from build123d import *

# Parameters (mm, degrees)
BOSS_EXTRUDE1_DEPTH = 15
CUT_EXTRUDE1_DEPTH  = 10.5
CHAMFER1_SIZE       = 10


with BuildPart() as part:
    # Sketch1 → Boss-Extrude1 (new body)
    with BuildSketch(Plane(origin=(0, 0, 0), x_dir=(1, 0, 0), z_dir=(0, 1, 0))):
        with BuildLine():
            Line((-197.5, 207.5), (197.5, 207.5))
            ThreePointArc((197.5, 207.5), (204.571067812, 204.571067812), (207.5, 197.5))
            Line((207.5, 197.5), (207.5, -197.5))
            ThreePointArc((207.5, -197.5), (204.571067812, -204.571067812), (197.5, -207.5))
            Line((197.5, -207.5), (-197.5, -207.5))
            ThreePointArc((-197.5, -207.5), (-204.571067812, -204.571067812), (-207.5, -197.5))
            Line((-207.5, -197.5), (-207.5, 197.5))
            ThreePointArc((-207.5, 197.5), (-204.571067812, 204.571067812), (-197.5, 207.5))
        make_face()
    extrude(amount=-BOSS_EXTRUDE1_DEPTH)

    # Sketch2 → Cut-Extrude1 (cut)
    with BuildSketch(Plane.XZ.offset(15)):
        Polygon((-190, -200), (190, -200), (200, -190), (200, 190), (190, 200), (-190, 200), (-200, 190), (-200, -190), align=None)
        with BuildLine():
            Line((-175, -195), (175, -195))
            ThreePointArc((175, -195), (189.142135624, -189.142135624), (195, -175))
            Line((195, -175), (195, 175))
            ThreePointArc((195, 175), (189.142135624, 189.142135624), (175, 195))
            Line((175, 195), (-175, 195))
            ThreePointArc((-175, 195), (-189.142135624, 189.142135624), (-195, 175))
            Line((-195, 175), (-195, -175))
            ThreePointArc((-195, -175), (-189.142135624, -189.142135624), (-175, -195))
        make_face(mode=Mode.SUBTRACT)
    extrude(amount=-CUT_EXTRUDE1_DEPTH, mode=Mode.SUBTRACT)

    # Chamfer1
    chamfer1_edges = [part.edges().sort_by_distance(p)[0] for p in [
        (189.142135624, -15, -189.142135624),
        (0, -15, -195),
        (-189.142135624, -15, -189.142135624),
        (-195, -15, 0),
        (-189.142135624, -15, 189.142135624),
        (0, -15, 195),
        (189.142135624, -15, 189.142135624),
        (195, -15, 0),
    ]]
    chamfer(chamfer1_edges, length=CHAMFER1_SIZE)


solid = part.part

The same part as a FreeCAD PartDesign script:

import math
import FreeCAD as App
import Part
import Sketcher


def edges_at(feature, points):
    """Names of the edges that pass closest to the given points."""
    edges = feature.Shape.Edges
    near = lambda p: min(range(len(edges)), key=lambda i: edges[i].distToShape(Part.Vertex(*p))[0])
    return sorted({f"Edge{near(p) + 1}" for p in points})


def add_polygon(sketch, points):
    """Adds a closed chain of lines whose ends are joined by coincident constraints."""
    first, n = sketch.GeometryCount, len(points)
    for a, b in zip(points, points[1:] + points[:1]):
        sketch.addGeometry(Part.LineSegment(App.Vector(*a, 0), App.Vector(*b, 0)), False)
    for i in range(n):
        sketch.addConstraint(Sketcher.Constraint("Coincident", first + i, 2, first + (i + 1) % n, 1))

doc = App.newDocument("Part")
body = doc.addObject("PartDesign::Body", "Body")

# Sketch on XZ plane
sketch1 = body.newObject("Sketcher::SketchObject", "Sketch")
sketch1.AttachmentSupport = (doc.getObject("XZ_Plane"), [""])
sketch1.MapMode = "FlatFace"
sketch1.addGeometry(Part.LineSegment(App.Vector(197.5, -207.5, 0), App.Vector(-197.5, -207.5, 0)), False)
sketch1.addGeometry(Part.ArcOfCircle(Part.Circle(App.Vector(-197.5, -197.5, 0), App.Vector(0, 0, 1), 10), math.radians(180), math.radians(270)), False)
sketch1.addGeometry(Part.LineSegment(App.Vector(-207.5, -197.5, 0), App.Vector(-207.5, 197.5, 0)), False)
sketch1.addGeometry(Part.ArcOfCircle(Part.Circle(App.Vector(-197.5, 197.5, 0), App.Vector(0, 0, 1), 10), math.radians(90), math.radians(180)), False)
sketch1.addGeometry(Part.LineSegment(App.Vector(-197.5, 207.5, 0), App.Vector(197.5, 207.5, 0)), False)
sketch1.addGeometry(Part.ArcOfCircle(Part.Circle(App.Vector(197.5, 197.5, 0), App.Vector(0, 0, 1), 10), math.radians(0), math.radians(90)), False)
sketch1.addGeometry(Part.LineSegment(App.Vector(207.5, 197.5, 0), App.Vector(207.5, -197.5, 0)), False)
sketch1.addGeometry(Part.ArcOfCircle(Part.Circle(App.Vector(197.5, -197.5, 0), App.Vector(0, 0, 1), 10), math.radians(-90), math.radians(0)), False)
sketch1.addConstraint(Sketcher.Constraint("Tangent", 0, 2, 1, 2))
sketch1.addConstraint(Sketcher.Constraint("Tangent", 1, 1, 2, 1))
sketch1.addConstraint(Sketcher.Constraint("Tangent", 2, 2, 3, 2))
sketch1.addConstraint(Sketcher.Constraint("Tangent", 3, 1, 4, 1))
sketch1.addConstraint(Sketcher.Constraint("Tangent", 4, 2, 5, 2))
sketch1.addConstraint(Sketcher.Constraint("Tangent", 5, 1, 6, 1))
sketch1.addConstraint(Sketcher.Constraint("Tangent", 6, 2, 7, 2))
sketch1.addConstraint(Sketcher.Constraint("Tangent", 7, 1, 0, 1))
sketch1.addConstraint(Sketcher.Constraint("Horizontal", 0))
sketch1.addConstraint(Sketcher.Constraint("Vertical", 2))
sketch1.addConstraint(Sketcher.Constraint("Horizontal", 4))
sketch1.addConstraint(Sketcher.Constraint("Vertical", 6))
sketch1.addConstraint(Sketcher.Constraint("Equal", 1, 3))
sketch1.addConstraint(Sketcher.Constraint("Equal", 3, 5))
sketch1.addConstraint(Sketcher.Constraint("Equal", 5, 7))
sketch1.addConstraint(Sketcher.Constraint("Symmetric", 1, 3, 5, 3, -1, 1))
sketch1.addConstraint(Sketcher.Constraint("Equal", 4, 2))
sketch1.addConstraint(Sketcher.Constraint("Radius", 1, 10.0))
sketch1.addConstraint(Sketcher.Constraint("DistanceX", 0, 2, 0, 1, 395.0))
pad1 = body.newObject("PartDesign::Pad", "Pad")
pad1.Profile = sketch1
pad1.Length = 15

# Sketch on XZ plane
sketch2 = body.newObject("Sketcher::SketchObject", "Sketch001")
sketch2.AttachmentSupport = (doc.getObject("XZ_Plane"), [""])
sketch2.MapMode = "FlatFace"
sketch2.AttachmentOffset = App.Placement(App.Vector(0, 0, 15), App.Rotation())
add_polygon(sketch2, [(-190, -200), (190, -200), (200, -190), (200, 190), (190, 200), (-190, 200), (-200, 190), (-200, -190)])  # lines 0-7
sketch2.addGeometry(Part.LineSegment(App.Vector(175, -195, 0), App.Vector(-175, -195, 0)), False)  # 8
sketch2.addGeometry(Part.ArcOfCircle(Part.Circle(App.Vector(-175, -175, 0), App.Vector(0, 0, 1), 20), math.radians(180), math.radians(270)), False)  # 9
sketch2.addGeometry(Part.LineSegment(App.Vector(-195, -175, 0), App.Vector(-195, 175, 0)), False)  # 10
sketch2.addGeometry(Part.ArcOfCircle(Part.Circle(App.Vector(-175, 175, 0), App.Vector(0, 0, 1), 20), math.radians(90), math.radians(180)), False)  # 11
sketch2.addGeometry(Part.LineSegment(App.Vector(-175, 195, 0), App.Vector(175, 195, 0)), False)  # 12
sketch2.addGeometry(Part.ArcOfCircle(Part.Circle(App.Vector(175, 175, 0), App.Vector(0, 0, 1), 20), math.radians(0), math.radians(90)), False)  # 13
sketch2.addGeometry(Part.LineSegment(App.Vector(195, 175, 0), App.Vector(195, -175, 0)), False)  # 14
sketch2.addGeometry(Part.ArcOfCircle(Part.Circle(App.Vector(175, -175, 0), App.Vector(0, 0, 1), 20), math.radians(-90), math.radians(0)), False)  # 15
sketch2.addConstraint(Sketcher.Constraint("Tangent", 8, 2, 9, 2))
sketch2.addConstraint(Sketcher.Constraint("Tangent", 9, 1, 10, 1))
sketch2.addConstraint(Sketcher.Constraint("Tangent", 10, 2, 11, 2))
sketch2.addConstraint(Sketcher.Constraint("Tangent", 11, 1, 12, 1))
sketch2.addConstraint(Sketcher.Constraint("Tangent", 12, 2, 13, 2))
sketch2.addConstraint(Sketcher.Constraint("Tangent", 13, 1, 14, 1))
sketch2.addConstraint(Sketcher.Constraint("Tangent", 14, 2, 15, 2))
sketch2.addConstraint(Sketcher.Constraint("Tangent", 15, 1, 8, 1))
sketch2.addConstraint(Sketcher.Constraint("Horizontal", 0))
sketch2.addConstraint(Sketcher.Constraint("Vertical", 2))
sketch2.addConstraint(Sketcher.Constraint("Horizontal", 4))
sketch2.addConstraint(Sketcher.Constraint("Vertical", 6))
sketch2.addConstraint(Sketcher.Constraint("Horizontal", 8))
sketch2.addConstraint(Sketcher.Constraint("Vertical", 10))
sketch2.addConstraint(Sketcher.Constraint("Horizontal", 12))
sketch2.addConstraint(Sketcher.Constraint("Vertical", 14))
sketch2.addConstraint(Sketcher.Constraint("Equal", 9, 11))
sketch2.addConstraint(Sketcher.Constraint("Equal", 11, 13))
sketch2.addConstraint(Sketcher.Constraint("Equal", 13, 15))
sketch2.addConstraint(Sketcher.Constraint("Symmetric", 9, 3, 13, 3, -1, 1))
sketch2.addConstraint(Sketcher.Constraint("Symmetric", 0, 2, 4, 2, -1, 1))
sketch2.addConstraint(Sketcher.Constraint("Symmetric", 1, 2, 5, 2, -1, 1))
sketch2.addConstraint(Sketcher.Constraint("Perpendicular", 1, 3))
sketch2.addConstraint(Sketcher.Constraint("Perpendicular", 5, 7))
sketch2.addConstraint(Sketcher.Constraint("Horizontal", 2, 2, 5, 2))
sketch2.addConstraint(Sketcher.Constraint("Horizontal", 1, 2, 6, 2))
sketch2.addConstraint(Sketcher.Constraint("Vertical", 0, 2, 3, 2))
sketch2.addConstraint(Sketcher.Constraint("Equal", 4, 2))
sketch2.addConstraint(Sketcher.Constraint("Equal", 12, 10))
sketch2.addConstraint(Sketcher.Constraint("Radius", 9, 20.0))
sketch2.addConstraint(Sketcher.Constraint("DistanceX", 0, 1, 0, 2, 380.0))
sketch2.addConstraint(Sketcher.Constraint("DistanceX", 8, 2, 8, 1, 350.0))
sketch2.addConstraint(Sketcher.Constraint("DistanceY", 0, 2, -1, 1, 200.0))
pocket1 = body.newObject("PartDesign::Pocket", "Pocket")
pocket1.Profile = sketch2
pocket1.Length = 10.5
doc.recompute()

chamfer = body.newObject("PartDesign::Chamfer", "Chamfer")
chamfer.Base = (pocket1, edges_at(pocket1, [
    (189.142, -15, -189.142),
    (0, -15, -195),
    (-189.142, -15, -189.142),
    (-195, -15, 0),
    (-189.142, -15, 189.142),
    (0, -15, 195),
    (189.142, -15, 189.142),
    (195, -15, 0),
]))
chamfer.Size = 10

doc.recompute()
